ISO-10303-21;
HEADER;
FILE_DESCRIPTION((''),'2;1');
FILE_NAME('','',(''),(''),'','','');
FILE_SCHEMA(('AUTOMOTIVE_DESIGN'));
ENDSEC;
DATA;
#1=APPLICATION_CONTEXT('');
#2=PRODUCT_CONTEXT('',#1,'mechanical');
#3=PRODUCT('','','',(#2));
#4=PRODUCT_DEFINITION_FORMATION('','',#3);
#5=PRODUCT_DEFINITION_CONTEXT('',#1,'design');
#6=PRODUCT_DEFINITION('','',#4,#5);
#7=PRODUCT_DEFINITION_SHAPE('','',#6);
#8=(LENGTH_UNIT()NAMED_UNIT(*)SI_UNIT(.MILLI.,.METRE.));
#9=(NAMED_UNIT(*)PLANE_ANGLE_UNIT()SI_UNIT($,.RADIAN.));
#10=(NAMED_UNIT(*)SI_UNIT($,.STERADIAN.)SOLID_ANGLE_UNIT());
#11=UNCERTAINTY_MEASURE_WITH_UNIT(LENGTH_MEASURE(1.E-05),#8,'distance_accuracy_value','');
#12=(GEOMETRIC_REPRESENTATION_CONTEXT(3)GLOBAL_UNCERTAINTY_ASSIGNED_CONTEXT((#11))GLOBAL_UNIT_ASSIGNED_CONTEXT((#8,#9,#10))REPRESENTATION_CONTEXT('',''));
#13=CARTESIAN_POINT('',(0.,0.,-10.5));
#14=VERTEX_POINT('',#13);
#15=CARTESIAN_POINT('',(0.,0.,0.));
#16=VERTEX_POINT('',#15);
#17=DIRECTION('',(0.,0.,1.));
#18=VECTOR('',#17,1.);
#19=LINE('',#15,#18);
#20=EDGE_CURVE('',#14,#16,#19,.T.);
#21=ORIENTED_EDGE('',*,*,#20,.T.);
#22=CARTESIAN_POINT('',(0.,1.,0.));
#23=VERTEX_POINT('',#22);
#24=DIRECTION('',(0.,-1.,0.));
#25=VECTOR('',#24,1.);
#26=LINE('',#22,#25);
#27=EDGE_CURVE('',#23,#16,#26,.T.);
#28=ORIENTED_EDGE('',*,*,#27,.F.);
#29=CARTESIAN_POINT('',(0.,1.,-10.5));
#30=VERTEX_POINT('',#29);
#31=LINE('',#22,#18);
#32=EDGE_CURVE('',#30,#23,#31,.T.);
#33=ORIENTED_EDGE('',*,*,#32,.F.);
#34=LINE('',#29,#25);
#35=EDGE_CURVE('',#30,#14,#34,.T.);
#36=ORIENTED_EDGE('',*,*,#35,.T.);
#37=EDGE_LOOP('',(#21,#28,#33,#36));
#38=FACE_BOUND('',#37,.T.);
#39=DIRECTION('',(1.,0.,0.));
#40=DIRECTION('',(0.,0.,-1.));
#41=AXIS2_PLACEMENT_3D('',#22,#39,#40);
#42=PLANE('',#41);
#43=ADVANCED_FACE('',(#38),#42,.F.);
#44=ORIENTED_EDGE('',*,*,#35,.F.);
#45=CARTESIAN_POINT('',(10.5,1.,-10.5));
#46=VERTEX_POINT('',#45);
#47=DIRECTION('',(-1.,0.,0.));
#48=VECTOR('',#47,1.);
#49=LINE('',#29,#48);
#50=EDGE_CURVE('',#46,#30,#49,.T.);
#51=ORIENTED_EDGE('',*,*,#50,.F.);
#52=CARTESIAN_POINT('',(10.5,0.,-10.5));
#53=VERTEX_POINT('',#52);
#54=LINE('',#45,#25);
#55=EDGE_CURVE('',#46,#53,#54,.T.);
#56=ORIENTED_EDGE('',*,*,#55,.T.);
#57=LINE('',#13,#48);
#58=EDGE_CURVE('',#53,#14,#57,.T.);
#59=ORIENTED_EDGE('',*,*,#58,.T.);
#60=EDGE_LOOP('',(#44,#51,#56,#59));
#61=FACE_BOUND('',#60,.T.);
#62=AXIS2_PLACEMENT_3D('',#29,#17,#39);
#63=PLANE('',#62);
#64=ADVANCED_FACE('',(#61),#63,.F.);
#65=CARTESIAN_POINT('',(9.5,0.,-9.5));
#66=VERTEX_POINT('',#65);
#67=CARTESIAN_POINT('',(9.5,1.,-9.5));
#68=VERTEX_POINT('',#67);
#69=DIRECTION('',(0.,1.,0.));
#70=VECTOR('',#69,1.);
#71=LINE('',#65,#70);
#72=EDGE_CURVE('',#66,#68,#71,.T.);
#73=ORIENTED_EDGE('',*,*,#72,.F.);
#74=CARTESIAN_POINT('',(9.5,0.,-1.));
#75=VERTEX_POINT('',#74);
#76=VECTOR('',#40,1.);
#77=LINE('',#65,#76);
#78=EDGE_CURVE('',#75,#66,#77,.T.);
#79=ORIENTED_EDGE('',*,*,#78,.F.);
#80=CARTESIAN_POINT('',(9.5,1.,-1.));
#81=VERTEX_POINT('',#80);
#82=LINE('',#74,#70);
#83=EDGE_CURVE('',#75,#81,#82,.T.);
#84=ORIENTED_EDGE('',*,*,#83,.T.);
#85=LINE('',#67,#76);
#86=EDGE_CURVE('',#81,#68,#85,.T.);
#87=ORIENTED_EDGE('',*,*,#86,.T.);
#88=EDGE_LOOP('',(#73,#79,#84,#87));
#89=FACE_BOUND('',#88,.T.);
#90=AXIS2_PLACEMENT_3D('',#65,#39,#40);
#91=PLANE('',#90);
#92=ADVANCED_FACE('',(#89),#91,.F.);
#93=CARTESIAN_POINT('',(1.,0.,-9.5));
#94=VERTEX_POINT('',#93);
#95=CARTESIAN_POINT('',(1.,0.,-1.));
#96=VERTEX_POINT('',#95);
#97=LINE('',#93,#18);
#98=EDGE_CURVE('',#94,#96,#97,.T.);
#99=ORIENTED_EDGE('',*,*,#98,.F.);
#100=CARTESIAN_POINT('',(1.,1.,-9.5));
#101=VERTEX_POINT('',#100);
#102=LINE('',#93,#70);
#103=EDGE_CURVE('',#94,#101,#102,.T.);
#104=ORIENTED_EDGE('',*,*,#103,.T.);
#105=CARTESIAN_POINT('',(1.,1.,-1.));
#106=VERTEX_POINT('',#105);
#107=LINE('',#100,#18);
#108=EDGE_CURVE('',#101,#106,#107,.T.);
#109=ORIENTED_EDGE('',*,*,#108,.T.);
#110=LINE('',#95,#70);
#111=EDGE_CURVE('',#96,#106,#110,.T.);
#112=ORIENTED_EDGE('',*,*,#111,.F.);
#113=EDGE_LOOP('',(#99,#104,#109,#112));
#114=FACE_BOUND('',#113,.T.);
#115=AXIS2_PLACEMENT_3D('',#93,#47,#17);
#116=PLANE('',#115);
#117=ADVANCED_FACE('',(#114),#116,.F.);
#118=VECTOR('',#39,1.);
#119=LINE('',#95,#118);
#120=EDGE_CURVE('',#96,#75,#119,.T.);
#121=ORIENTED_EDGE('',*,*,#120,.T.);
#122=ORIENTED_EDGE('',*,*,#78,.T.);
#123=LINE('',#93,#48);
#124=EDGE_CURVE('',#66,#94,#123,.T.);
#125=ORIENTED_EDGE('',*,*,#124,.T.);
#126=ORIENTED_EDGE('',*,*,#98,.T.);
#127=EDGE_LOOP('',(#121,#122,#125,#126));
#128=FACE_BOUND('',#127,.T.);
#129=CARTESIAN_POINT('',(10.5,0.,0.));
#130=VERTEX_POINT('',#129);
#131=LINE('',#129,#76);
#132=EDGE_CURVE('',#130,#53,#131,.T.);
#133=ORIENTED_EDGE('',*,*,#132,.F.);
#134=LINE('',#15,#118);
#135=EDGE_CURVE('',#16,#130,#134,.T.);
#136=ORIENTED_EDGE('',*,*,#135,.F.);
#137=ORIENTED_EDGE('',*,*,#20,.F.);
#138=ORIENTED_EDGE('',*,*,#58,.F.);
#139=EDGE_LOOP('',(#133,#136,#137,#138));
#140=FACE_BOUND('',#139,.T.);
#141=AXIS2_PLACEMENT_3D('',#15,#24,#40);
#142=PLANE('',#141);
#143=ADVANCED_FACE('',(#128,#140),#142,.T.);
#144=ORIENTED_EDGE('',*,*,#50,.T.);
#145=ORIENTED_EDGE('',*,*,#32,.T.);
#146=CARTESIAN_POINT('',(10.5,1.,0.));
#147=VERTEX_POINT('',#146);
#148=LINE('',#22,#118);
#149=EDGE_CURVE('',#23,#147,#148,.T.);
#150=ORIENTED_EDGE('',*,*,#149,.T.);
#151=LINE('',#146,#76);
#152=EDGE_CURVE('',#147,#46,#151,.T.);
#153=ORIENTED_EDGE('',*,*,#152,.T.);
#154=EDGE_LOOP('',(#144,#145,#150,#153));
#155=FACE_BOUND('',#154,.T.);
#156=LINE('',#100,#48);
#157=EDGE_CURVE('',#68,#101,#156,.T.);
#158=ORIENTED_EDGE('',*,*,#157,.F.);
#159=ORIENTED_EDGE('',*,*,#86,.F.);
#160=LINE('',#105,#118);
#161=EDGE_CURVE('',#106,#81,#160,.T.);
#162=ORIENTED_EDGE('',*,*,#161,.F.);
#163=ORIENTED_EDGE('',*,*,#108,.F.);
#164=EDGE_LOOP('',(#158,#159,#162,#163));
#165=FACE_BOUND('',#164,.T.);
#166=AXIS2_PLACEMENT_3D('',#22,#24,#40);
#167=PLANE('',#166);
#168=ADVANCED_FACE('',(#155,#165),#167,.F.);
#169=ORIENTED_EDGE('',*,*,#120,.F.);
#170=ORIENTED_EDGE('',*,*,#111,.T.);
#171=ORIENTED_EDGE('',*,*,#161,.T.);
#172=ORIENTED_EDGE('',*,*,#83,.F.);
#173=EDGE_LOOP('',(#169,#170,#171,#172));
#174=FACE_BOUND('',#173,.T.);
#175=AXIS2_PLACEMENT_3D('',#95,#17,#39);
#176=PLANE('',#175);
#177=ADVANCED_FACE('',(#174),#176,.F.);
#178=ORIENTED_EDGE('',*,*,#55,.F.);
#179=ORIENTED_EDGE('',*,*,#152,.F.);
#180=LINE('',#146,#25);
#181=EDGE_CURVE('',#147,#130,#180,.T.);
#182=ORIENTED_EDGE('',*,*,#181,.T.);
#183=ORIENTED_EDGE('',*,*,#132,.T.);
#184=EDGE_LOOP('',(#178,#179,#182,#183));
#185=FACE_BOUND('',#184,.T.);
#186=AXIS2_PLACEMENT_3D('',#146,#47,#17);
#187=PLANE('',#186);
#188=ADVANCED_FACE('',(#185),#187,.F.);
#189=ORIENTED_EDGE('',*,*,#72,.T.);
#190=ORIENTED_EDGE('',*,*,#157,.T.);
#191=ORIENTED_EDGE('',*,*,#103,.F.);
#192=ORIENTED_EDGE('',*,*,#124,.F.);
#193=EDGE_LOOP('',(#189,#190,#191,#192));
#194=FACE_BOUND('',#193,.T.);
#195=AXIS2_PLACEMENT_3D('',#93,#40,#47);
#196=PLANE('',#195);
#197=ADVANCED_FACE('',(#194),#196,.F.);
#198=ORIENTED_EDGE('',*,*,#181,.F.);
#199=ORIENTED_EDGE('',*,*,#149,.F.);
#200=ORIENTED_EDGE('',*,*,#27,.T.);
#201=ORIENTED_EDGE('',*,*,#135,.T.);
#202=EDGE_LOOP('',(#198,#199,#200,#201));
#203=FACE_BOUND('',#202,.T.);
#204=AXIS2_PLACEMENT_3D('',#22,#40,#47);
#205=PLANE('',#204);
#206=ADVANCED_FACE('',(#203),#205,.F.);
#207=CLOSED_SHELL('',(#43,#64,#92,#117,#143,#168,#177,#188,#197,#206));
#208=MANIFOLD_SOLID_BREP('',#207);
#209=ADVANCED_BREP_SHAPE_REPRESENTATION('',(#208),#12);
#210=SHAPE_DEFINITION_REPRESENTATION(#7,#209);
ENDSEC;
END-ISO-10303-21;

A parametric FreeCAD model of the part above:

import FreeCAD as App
import Part
import Sketcher
from FreeCAD import Vector


def add_polygon(sketch, points):
    """Adds a closed chain of lines whose ends are joined by coincident constraints."""
    first, n = sketch.GeometryCount, len(points)
    for a, b in zip(points, points[1:] + points[:1]):
        sketch.addGeometry(Part.LineSegment(App.Vector(*a, 0), App.Vector(*b, 0)), False)
    for i in range(n):
        sketch.addConstraint(Sketcher.Constraint("Coincident", first + i, 2, first + (i + 1) % n, 1))

doc = App.newDocument("Part")
body = doc.addObject("PartDesign::Body", "Body")

sketch1 = body.newObject("Sketcher::SketchObject", "Sketch")
sketch1.AttachmentSupport = (doc.getObject("XZ_Plane"), [""])
sketch1.MapMode = "FlatFace"
add_polygon(sketch1, [(0, -10), (0, 0), (10, 0), (10, -10)])
sketch1.addConstraint([
    Sketcher.Constraint("Vertical", 0),
    Sketcher.Constraint("Horizontal", 1),
    Sketcher.Constraint("Vertical", 2),
    Sketcher.Constraint("Horizontal", 3),
    Sketcher.Constraint("Coincident", 0, 2, -1, 1),
    Sketcher.Constraint("Equal", 3, 0),
    Sketcher.Constraint("DistanceX", 1, 1, 1, 2, 10.5),
])
pad1 = body.newObject("PartDesign::Pad", "Pad")
pad1.Profile = sketch1
pad1.Length = 1
pad1.Reversed = True

sketch2 = body.newObject("Sketcher::SketchObject", "Sketch001")
sketch2.AttachmentSupport = (doc.getObject("XZ_Plane"), [""])
sketch2.MapMode = "FlatFace"
sketch2.AttachmentOffset = App.Placement(Vector(0, 0, -1), App.Rotation())
add_polygon(sketch2, [(1, -10), (1, -1), (10, -1), (10, -10)])
sketch2.addConstraint([
    Sketcher.Constraint("Vertical", 0),
    Sketcher.Constraint("Horizontal", 1),
    Sketcher.Constraint("Vertical", 2),
    Sketcher.Constraint("Horizontal", 3),
    Sketcher.Constraint("Equal", 3, 0),
    Sketcher.Constraint("DistanceX", 1, 1, 1, 2, 8.5),
    Sketcher.Constraint("DistanceX", -1, 1, 0, 2, 1.0),
    Sketcher.Constraint("DistanceY", 0, 2, -1, 1, 1.0),
])
pocket1 = body.newObject("PartDesign::Pocket", "Pocket")
pocket1.Profile = sketch2
pocket1.Type = "ThroughAll"
pocket1.Reversed = True

doc.recompute()
